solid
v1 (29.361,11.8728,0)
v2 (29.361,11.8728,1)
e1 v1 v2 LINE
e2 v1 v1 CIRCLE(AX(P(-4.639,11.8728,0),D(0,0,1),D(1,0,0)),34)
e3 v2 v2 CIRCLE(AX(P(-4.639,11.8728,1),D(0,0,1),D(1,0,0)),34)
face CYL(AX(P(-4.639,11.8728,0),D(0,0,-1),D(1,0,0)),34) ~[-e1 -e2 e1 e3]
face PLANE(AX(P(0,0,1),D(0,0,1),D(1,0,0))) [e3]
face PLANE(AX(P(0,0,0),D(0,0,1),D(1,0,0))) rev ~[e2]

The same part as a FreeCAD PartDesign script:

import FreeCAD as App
import Part
import Sketcher
Q = App.Units.Quantity

doc = App.newDocument("Part")
body = doc.addObject("PartDesign::Body", "Body")

sketch1 = doc.addObject("Sketcher::SketchObject", "Sketch")
body.addObject(sketch1)
sketch1.AttachmentSupport = (doc.XY_Plane, [""])
sketch1.MapMode = "FlatFace"
sketch1.addGeometry(Part.Circle(App.Vector(-4.639, 11.8728, 0), App.Vector(0, 0, 1), 34), False)
sketch1.addConstraint(Sketcher.Constraint("Diameter", 0, Q("68 mm")))
sketch1.addConstraint(Sketcher.Constraint("DistanceX", 0, 3, -1, 1, Q("4.639 mm")))
sketch1.addConstraint(Sketcher.Constraint("DistanceY", -1, 1, 0, 3, Q("11.8728 mm")))
pad1 = doc.addObject("PartDesign::Pad", "Pad")
body.addObject(pad1)
pad1.Profile = sketch1
pad1.Length = 1

doc.recompute()
